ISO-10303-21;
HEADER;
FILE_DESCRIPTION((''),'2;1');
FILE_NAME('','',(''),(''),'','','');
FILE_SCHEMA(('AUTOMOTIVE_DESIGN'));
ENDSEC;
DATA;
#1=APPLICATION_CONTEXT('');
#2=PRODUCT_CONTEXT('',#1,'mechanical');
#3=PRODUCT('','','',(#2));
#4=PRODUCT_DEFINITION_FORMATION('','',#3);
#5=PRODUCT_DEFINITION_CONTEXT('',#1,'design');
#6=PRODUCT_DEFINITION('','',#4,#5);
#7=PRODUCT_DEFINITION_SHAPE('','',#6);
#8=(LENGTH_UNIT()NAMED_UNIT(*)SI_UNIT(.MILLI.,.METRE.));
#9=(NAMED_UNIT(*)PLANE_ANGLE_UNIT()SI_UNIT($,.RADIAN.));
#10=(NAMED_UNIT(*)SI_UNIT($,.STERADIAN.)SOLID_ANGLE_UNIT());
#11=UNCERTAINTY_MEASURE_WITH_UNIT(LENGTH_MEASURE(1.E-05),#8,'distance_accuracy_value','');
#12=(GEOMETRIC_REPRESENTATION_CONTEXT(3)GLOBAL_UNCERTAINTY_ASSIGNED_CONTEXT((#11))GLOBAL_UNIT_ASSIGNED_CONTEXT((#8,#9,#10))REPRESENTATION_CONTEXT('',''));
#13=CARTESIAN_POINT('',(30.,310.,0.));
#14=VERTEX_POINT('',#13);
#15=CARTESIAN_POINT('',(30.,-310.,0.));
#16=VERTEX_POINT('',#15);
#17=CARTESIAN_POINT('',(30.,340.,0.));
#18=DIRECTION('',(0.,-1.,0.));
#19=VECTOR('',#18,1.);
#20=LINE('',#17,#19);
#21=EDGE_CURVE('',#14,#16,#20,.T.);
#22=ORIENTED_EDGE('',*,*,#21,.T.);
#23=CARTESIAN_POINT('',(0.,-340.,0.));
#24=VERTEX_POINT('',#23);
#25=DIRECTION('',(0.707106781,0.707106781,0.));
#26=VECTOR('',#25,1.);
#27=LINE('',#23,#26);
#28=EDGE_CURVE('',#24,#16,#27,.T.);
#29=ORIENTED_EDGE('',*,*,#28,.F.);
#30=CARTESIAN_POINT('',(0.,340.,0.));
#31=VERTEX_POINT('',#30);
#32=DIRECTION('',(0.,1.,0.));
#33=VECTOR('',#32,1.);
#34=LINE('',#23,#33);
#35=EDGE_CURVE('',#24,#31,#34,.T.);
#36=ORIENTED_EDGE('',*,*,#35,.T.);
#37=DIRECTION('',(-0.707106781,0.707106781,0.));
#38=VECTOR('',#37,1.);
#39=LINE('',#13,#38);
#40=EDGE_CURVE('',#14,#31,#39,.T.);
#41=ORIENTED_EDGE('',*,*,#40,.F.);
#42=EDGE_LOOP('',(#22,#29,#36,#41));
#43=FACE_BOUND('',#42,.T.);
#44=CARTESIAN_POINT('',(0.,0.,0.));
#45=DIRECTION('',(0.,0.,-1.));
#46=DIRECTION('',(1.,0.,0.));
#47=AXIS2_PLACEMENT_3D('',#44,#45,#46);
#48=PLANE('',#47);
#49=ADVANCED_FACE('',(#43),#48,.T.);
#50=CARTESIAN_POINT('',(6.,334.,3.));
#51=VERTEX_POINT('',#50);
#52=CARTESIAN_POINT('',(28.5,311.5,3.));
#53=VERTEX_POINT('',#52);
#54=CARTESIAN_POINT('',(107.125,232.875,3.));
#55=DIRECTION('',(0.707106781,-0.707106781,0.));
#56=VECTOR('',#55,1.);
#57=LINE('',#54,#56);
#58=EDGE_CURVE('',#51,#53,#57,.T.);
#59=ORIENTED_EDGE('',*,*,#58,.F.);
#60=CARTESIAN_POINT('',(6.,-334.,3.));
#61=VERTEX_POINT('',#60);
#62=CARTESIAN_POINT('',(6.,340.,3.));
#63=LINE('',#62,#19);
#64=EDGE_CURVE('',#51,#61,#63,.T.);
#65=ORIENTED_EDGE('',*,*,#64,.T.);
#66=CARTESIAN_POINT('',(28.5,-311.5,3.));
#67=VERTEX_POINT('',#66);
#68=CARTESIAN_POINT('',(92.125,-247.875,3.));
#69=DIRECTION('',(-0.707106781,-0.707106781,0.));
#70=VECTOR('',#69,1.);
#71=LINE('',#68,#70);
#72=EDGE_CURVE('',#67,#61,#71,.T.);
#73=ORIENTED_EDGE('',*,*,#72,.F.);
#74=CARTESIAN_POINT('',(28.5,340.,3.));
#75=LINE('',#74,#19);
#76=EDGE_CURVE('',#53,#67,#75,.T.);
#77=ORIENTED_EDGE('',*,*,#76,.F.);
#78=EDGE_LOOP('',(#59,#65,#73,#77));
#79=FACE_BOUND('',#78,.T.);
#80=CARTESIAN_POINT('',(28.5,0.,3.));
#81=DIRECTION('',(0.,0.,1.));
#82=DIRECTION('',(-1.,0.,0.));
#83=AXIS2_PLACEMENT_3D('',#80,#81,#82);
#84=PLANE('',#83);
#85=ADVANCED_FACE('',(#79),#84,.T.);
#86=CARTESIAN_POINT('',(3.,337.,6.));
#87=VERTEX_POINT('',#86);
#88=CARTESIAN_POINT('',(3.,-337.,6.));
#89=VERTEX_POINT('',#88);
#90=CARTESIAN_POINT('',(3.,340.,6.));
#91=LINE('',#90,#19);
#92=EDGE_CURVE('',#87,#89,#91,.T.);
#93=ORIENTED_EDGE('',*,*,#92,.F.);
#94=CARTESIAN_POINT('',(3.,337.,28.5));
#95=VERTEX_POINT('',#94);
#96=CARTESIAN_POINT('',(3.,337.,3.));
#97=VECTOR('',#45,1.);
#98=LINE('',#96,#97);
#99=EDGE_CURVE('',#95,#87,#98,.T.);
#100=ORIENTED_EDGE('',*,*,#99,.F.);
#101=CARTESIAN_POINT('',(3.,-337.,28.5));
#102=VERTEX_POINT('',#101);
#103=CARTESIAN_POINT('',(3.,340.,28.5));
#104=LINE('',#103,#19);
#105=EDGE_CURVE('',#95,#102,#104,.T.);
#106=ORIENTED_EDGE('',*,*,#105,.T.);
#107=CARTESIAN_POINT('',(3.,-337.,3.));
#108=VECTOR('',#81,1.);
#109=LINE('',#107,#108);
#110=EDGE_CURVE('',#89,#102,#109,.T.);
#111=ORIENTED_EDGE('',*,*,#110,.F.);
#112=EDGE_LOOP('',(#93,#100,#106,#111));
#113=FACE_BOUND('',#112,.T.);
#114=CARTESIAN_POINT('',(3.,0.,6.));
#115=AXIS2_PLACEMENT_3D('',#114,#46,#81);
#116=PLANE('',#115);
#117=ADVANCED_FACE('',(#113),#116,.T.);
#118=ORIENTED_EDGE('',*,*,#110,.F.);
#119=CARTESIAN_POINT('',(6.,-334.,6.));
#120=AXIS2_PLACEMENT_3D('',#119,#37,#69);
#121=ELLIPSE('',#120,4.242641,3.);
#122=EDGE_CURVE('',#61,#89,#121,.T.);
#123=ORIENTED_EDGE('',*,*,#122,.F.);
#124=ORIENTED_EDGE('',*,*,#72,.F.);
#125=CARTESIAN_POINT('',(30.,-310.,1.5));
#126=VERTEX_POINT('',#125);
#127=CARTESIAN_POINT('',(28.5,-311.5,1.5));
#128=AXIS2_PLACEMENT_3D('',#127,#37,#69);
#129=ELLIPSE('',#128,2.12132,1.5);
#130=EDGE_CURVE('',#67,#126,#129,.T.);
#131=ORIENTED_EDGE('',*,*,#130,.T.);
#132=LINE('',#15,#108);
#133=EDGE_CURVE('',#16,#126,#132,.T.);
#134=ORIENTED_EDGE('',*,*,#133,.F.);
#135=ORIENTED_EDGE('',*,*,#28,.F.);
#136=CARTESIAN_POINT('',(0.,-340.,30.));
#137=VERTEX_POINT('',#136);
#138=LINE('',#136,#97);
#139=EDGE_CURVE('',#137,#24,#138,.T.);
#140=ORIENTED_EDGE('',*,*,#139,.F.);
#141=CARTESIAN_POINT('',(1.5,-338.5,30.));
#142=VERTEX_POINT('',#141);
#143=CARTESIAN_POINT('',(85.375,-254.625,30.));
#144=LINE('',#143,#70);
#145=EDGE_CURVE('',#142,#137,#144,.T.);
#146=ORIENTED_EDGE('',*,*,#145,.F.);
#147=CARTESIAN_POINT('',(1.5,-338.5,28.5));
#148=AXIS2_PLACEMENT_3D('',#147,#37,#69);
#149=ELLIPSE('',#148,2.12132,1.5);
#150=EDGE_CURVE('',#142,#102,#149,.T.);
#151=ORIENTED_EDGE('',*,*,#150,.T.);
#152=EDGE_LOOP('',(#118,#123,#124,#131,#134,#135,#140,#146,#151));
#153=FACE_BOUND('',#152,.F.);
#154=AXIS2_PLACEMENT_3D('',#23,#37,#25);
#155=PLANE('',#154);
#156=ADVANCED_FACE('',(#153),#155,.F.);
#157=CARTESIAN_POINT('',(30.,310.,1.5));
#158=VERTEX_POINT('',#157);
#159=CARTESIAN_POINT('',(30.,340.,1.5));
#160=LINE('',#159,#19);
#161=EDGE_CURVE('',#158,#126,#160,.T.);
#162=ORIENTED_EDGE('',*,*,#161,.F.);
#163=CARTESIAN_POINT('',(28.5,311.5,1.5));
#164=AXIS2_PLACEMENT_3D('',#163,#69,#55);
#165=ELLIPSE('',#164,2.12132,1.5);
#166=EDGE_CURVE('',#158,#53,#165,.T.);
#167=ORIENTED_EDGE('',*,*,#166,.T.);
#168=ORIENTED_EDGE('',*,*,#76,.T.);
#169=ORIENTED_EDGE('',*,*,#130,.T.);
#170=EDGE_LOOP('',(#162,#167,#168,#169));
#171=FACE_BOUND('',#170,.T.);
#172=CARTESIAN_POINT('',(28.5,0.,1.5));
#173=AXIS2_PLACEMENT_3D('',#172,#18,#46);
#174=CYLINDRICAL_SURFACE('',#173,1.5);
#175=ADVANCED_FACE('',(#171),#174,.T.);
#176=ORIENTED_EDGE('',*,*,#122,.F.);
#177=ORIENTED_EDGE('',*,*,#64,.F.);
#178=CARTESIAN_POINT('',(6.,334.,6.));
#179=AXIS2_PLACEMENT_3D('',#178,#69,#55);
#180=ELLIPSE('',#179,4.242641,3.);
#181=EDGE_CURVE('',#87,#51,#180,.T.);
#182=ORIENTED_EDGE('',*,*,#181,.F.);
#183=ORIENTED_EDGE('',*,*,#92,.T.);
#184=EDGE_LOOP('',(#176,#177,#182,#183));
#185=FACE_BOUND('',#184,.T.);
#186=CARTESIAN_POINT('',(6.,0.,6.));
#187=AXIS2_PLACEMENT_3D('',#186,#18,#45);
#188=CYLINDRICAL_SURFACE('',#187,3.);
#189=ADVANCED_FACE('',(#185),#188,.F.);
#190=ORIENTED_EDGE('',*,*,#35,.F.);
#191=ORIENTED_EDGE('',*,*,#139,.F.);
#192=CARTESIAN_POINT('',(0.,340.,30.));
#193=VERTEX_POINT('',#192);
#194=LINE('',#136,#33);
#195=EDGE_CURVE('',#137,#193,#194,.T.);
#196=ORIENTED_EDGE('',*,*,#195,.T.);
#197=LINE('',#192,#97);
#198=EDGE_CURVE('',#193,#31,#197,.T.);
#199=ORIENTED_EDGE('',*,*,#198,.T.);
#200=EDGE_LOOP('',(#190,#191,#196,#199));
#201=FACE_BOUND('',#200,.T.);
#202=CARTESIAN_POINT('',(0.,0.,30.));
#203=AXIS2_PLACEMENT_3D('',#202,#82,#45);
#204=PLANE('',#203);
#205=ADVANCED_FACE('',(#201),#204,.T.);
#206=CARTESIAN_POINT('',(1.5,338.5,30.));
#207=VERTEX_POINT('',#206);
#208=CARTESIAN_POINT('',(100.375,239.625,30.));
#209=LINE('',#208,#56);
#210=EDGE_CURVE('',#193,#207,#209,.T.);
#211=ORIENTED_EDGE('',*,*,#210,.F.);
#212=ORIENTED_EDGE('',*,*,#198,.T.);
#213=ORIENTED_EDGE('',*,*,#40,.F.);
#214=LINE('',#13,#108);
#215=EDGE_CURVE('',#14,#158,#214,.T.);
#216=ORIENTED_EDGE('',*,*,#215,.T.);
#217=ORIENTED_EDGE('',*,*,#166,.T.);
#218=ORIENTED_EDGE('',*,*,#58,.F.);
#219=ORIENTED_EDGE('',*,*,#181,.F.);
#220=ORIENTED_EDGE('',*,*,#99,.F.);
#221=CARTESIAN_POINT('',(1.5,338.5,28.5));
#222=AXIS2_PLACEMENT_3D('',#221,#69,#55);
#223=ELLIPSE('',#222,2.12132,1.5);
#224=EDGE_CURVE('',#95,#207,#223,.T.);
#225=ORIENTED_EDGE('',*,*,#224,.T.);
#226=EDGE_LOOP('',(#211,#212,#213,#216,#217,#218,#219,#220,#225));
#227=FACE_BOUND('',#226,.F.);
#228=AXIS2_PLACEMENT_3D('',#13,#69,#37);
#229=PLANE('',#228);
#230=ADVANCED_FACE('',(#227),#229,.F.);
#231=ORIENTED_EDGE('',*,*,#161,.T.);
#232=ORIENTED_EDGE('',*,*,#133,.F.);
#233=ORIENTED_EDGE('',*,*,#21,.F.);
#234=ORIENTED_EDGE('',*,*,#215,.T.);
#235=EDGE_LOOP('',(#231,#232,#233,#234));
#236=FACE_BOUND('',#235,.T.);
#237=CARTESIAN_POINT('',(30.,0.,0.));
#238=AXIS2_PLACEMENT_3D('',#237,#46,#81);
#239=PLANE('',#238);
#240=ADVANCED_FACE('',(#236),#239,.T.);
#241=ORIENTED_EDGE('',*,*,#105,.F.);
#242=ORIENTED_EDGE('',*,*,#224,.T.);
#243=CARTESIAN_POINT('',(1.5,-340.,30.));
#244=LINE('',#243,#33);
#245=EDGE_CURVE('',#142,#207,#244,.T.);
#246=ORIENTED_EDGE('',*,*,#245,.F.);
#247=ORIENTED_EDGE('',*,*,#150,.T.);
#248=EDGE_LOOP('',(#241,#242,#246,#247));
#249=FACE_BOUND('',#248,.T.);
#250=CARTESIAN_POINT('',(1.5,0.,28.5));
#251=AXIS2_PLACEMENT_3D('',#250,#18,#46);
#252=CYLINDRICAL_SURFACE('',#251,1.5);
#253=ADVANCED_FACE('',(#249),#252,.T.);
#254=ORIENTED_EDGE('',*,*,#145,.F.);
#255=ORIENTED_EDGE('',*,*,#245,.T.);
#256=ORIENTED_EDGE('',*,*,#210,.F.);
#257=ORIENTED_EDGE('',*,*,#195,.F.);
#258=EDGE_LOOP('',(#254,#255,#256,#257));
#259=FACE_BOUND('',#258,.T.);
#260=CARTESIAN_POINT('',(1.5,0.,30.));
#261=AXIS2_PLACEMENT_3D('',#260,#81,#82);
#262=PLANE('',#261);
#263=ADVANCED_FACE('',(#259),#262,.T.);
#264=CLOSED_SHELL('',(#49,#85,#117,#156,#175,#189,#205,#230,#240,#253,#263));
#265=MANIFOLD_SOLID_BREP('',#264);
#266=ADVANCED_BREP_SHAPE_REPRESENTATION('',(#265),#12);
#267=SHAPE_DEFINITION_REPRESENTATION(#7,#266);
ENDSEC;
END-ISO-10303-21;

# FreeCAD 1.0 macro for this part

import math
import FreeCAD as App
import Part
import Sketcher

V = App.Vector
Q = App.Units.Quantity


def add_polygon(sketch, points):
    """Adds a closed chain of lines whose ends are joined by coincident constraints."""
    first, n = sketch.GeometryCount, len(points)
    for a, b in zip(points, points[1:] + points[:1]):
        sketch.addGeometry(Part.LineSegment(App.Vector(*a, 0), App.Vector(*b, 0)), False)
    for i in range(n):
        sketch.addConstraint(Sketcher.Constraint("Coincident", first + i, 2, first + (i + 1) % n, 1))

doc = App.newDocument("Part")
params = doc.addObject("Spreadsheet::Sheet", "Params")
for row, (alias, value) in enumerate([
    ("sketch1_radius", "3 mm"),
    ("sketch1_radius2", "1.5 mm"),
    ("sketch1_width", "30 mm"),
    ("sketch1_width2", "22.5 mm"),
    ("pad1_length", "680 mm"),
    ("sketch2_width", "30 mm"),
], start=1):
    params.set(f"A{row}", alias)
    params.set(f"B{row}", "=" + value)
    params.setAlias(f"B{row}", alias)

body = doc.addObject("PartDesign::Body", "Body")

# Sketch on XZ plane
sketch1 = body.newObject("Sketcher::SketchObject", "Sketch")
sketch1.AttachmentSupport = (doc.getObject("XZ_Plane"), [""])
sketch1.MapMode = "FlatFace"
sketch1.addGeometry(Part.LineSegment(V(0, 0, 0), V(30, 0, 0)), False)
sketch1.addGeometry(Part.LineSegment(V(30, 0, 0), V(30, 1.5, 0)), False)
sketch1.addGeometry(Part.ArcOfCircle(Part.Circle(V(28.5, 1.5, 0), V(0, 0, 1), 1.5), math.radians(0), math.radians(90)), False)
sketch1.addGeometry(Part.LineSegment(V(28.5, 3, 0), V(6, 3, 0)), False)
sketch1.addGeometry(Part.ArcOfCircle(Part.Circle(V(6, 6, 0), V(0, 0, 1), 3), math.radians(180), math.radians(270)), False)
sketch1.addGeometry(Part.LineSegment(V(3, 6, 0), V(3, 28.5, 0)), False)
sketch1.addGeometry(Part.ArcOfCircle(Part.Circle(V(1.5, 28.5, 0), V(0, 0, 1), 1.5), math.radians(0), math.radians(90)), False)
sketch1.addGeometry(Part.LineSegment(V(1.5, 30, 0), V(0, 30, 0)), False)
sketch1.addGeometry(Part.LineSegment(V(0, 30, 0), V(0, 0, 0)), False)
sketch1.addConstraint(Sketcher.Constraint("Coincident", 0, 2, 1, 1))
sketch1.addConstraint(Sketcher.Constraint("Tangent", 1, 2, 2, 1))
sketch1.addConstraint(Sketcher.Constraint("Tangent", 2, 2, 3, 1))
sketch1.addConstraint(Sketcher.Constraint("Tangent", 3, 2, 4, 2))
sketch1.addConstraint(Sketcher.Constraint("Tangent", 4, 1, 5, 1))
sketch1.addConstraint(Sketcher.Constraint("Tangent", 5, 2, 6, 1))
sketch1.addConstraint(Sketcher.Constraint("Tangent", 6, 2, 7, 1))
sketch1.addConstraint(Sketcher.Constraint("Coincident", 7, 2, 8, 1))
sketch1.addConstraint(Sketcher.Constraint("Coincident", 8, 2, 0, 1))
sketch1.addConstraint(Sketcher.Constraint("Horizontal", 0))
sketch1.addConstraint(Sketcher.Constraint("Vertical", 1))
sketch1.addConstraint(Sketcher.Constraint("Horizontal", 3))
sketch1.addConstraint(Sketcher.Constraint("Vertical", 5))
sketch1.addConstraint(Sketcher.Constraint("Horizontal", 7))
sketch1.addConstraint(Sketcher.Constraint("Vertical", 8))
sketch1.addConstraint(Sketcher.Constraint("Coincident", 8, 2, -1, 1))
sketch1.addConstraint(Sketcher.Constraint("Equal", 2, 6))
sketch1.addConstraint(Sketcher.Constraint("Equal", 7, 1))
sketch1.addConstraint(Sketcher.Constraint("Equal", 3, 5))
sketch1.addConstraint(Sketcher.Constraint("Radius", 4, Q("3 mm")))
sketch1.addConstraint(Sketcher.Constraint("Radius", 2, Q("1.5 mm")))
sketch1.addConstraint(Sketcher.Constraint("DistanceX", 0, 1, 0, 2, Q("30 mm")))
sketch1.addConstraint(Sketcher.Constraint("DistanceX", 3, 2, 3, 1, Q("22.5 mm")))
sketch1.setExpression("Constraints[19]", "Params.sketch1_radius")
sketch1.setExpression("Constraints[20]", "Params.sketch1_radius2")
sketch1.setExpression("Constraints[21]", "Params.sketch1_width")
sketch1.setExpression("Constraints[22]", "Params.sketch1_width2")
pad1 = body.newObject("PartDesign::Pad", "Pad")
pad1.Profile = sketch1
pad1.setExpression("Length", "Params.pad1_length")
pad1.Midplane = True

# Sketch on XY plane
sketch2 = body.newObject("Sketcher::SketchObject", "Sketch001")
sketch2.AttachmentSupport = (doc.getObject("XY_Plane"), [""])
sketch2.MapMode = "FlatFace"
add_polygon(sketch2, [(30, 310), (0, 340), (30, 340)])  # lines 0-2
add_polygon(sketch2, [(30, -340), (0, -340), (30, -310)])  # lines 3-5
sketch2.addConstraint(Sketcher.Constraint("Horizontal", 1))
sketch2.addConstraint(Sketcher.Constraint("Vertical", 2))
sketch2.addConstraint(Sketcher.Constraint("Horizontal", 3))
sketch2.addConstraint(Sketcher.Constraint("Vertical", 5))
sketch2.addConstraint(Sketcher.Constraint("Symmetric", 0, 2, 3, 2, -1, 1))
sketch2.addConstraint(Sketcher.Constraint("Symmetric", 2, 2, 4, 2, -1))
sketch2.addConstraint(Sketcher.Constraint("PointOnObject", 0, 2, -2))
sketch2.addConstraint(Sketcher.Constraint("Perpendicular", 0, 4))
sketch2.addConstraint(Sketcher.Constraint("DistanceX", 1, 1, 1, 2, Q("30 mm")))
sketch2.addConstraint(Sketcher.Constraint("DistanceY", -1, 1, 0, 2, Q("340 mm")))
sketch2.setExpression("Constraints[14]", "Params.sketch2_width")
pocket1 = body.newObject("PartDesign::Pocket", "Pocket")
pocket1.Profile = sketch2
pocket1.Type = "ThroughAll"
pocket1.Reversed = True

doc.recompute()
